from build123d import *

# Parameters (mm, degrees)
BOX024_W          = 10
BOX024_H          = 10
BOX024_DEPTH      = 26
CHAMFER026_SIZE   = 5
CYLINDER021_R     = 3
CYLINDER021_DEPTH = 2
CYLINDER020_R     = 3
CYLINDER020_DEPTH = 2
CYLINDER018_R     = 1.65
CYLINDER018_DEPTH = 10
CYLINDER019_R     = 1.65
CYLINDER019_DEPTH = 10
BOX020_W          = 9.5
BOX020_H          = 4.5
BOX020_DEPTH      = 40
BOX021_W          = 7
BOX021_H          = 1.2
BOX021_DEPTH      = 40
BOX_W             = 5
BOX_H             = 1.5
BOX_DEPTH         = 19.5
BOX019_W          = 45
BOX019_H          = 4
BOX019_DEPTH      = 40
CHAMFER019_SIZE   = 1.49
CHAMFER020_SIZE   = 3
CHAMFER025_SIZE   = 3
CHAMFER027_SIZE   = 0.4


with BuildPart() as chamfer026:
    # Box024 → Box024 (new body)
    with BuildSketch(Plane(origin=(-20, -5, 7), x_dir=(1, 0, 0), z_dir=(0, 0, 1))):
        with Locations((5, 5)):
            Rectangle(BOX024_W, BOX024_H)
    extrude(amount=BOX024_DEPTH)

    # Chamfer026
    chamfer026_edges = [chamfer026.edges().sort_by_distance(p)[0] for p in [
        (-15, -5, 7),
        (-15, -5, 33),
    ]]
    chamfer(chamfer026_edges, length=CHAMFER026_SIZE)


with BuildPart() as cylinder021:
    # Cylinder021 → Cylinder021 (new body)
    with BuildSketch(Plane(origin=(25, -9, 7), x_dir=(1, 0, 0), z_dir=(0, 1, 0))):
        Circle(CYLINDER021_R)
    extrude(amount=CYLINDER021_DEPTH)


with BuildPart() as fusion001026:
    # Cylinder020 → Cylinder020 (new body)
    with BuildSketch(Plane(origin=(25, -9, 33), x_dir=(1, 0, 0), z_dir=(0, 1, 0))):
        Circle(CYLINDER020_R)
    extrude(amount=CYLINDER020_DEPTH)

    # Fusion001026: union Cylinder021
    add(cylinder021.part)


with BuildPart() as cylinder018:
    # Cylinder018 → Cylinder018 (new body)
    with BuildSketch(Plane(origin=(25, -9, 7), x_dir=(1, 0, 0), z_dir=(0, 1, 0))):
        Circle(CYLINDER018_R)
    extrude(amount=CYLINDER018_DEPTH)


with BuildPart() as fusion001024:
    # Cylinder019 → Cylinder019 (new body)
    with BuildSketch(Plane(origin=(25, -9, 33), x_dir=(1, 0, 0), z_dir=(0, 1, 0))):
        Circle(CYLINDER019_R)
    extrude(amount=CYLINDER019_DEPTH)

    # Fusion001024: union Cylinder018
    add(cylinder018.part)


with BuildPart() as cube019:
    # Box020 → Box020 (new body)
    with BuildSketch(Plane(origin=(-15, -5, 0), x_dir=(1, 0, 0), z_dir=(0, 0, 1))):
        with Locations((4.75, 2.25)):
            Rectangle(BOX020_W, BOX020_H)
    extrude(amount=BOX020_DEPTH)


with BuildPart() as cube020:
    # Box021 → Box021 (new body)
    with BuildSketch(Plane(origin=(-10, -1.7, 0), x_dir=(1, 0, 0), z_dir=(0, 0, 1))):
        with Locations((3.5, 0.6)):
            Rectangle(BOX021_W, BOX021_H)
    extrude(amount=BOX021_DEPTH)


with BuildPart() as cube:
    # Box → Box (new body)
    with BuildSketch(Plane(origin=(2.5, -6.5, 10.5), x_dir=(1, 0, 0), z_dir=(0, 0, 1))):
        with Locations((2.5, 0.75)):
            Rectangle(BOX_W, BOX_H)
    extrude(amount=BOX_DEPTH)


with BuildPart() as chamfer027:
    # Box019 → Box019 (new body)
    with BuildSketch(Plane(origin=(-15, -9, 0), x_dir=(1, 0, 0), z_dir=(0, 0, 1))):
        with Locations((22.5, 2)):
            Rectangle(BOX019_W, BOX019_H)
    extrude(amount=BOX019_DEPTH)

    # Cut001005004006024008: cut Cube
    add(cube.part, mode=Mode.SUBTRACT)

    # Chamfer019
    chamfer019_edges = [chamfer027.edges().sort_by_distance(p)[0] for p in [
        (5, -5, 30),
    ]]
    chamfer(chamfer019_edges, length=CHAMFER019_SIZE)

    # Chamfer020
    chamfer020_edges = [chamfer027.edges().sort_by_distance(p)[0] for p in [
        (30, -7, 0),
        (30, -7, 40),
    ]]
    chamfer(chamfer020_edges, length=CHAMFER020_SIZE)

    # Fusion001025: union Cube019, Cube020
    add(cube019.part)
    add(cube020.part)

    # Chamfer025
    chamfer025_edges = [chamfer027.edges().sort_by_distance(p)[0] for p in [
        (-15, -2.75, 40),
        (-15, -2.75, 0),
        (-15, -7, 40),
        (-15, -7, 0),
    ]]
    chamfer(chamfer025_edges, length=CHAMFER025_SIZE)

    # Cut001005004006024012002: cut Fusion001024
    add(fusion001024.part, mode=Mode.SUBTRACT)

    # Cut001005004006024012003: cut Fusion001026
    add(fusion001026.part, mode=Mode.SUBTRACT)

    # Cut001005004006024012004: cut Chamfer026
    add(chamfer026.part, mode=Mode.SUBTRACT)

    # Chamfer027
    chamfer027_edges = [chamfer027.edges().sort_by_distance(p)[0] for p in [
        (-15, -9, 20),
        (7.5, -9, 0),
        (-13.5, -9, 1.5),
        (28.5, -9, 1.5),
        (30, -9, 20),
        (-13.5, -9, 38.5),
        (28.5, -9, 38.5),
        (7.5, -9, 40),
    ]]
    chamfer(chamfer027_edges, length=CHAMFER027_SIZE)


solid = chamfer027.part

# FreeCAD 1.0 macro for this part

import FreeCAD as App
import Part
import Sketcher

V = App.Vector


def edges_at(feature, points):
    """Names of the edges that pass closest to the given points."""
    edges = feature.Shape.Edges
    near = lambda p: min(range(len(edges)), key=lambda i: edges[i].distToShape(Part.Vertex(*p))[0])
    return sorted({f"Edge{near(p) + 1}" for p in points})


def add_polygon(sketch, points):
    """Adds a closed chain of lines whose ends are joined by coincident constraints."""
    first, n = sketch.GeometryCount, len(points)
    for a, b in zip(points, points[1:] + points[:1]):
        sketch.addGeometry(Part.LineSegment(App.Vector(*a, 0), App.Vector(*b, 0)), False)
    for i in range(n):
        sketch.addConstraint(Sketcher.Constraint("Coincident", first + i, 2, first + (i + 1) % n, 1))

doc = App.newDocument("Part")
body = doc.addObject("PartDesign::Body", "Body")

# Sketch on XY plane
sketch1 = body.newObject("Sketcher::SketchObject", "Sketch")
sketch1.AttachmentSupport = (doc.getObject("XY_Plane"), [""])
sketch1.MapMode = "FlatFace"
sketch1.AttachmentOffset = App.Placement(V(0, 0, 7), App.Rotation())
add_polygon(sketch1, [(-20, 5), (-20, -5), (-10, -5), (-10, 5)])  # lines 0-3
sketch1.addConstraint([
    Sketcher.Constraint("Vertical", 0),
    Sketcher.Constraint("Horizontal", 1),
    Sketcher.Constraint("Vertical", 2),
    Sketcher.Constraint("Horizontal", 3),
    Sketcher.Constraint("Equal", 3, 0),
    Sketcher.Constraint("DistanceX", 1, 1, 1, 2, 10.0),
    Sketcher.Constraint("DistanceX", 0, 2, -1, 1, 20.0),
    Sketcher.Constraint("DistanceY", 0, 2, -1, 1, 5.0),
])
pad1 = body.newObject("PartDesign::Pad", "Pad")
pad1.Profile = sketch1
pad1.Length = 26
doc.recompute()

chamfer = body.newObject("PartDesign::Chamfer", "Chamfer")
chamfer.Base = (pad1, edges_at(pad1, [(-15, -5, 7), (-15, -5, 33)]))
chamfer.Size = 5
body2 = doc.addObject("PartDesign::Body", "Body001")

# Sketch on XZ plane
sketch2 = body2.newObject("Sketcher::SketchObject", "Sketch001")
sketch2.AttachmentSupport = (doc.getObject("XZ_Plane001"), [""])
sketch2.MapMode = "FlatFace"
sketch2.AttachmentOffset = App.Placement(V(0, 0, 9), App.Rotation())
sketch2.addGeometry(Part.Circle(V(25, 7, 0), V(0, 0, 1), 3), False)
sketch2.addConstraint([
    Sketcher.Constraint("Diameter", 0, 6.0),
    Sketcher.Constraint("DistanceX", -1, 1, 0, 3, 25.0),
    Sketcher.Constraint("DistanceY", -1, 1, 0, 3, 7.0),
])
pad2 = body2.newObject("PartDesign::Pad", "Pad001")
pad2.Profile = sketch2
pad2.Length = 2
pad2.Reversed = True
body3 = doc.addObject("PartDesign::Body", "Body002")
body3.AllowCompound = True

# Sketch on XZ plane
sketch3 = body3.newObject("Sketcher::SketchObject", "Sketch002")
sketch3.AttachmentSupport = (doc.getObject("XZ_Plane002"), [""])
sketch3.MapMode = "FlatFace"
sketch3.AttachmentOffset = App.Placement(V(0, 0, 9), App.Rotation())
sketch3.addGeometry(Part.Circle(V(25, 33, 0), V(0, 0, 1), 3), False)
sketch3.addConstraint([
    Sketcher.Constraint("Diameter", 0, 6.0),
    Sketcher.Constraint("DistanceX", -1, 1, 0, 3, 25.0),
    Sketcher.Constraint("DistanceY", -1, 1, 0, 3, 33.0),
])
pad3 = body3.newObject("PartDesign::Pad", "Pad002")
pad3.Profile = sketch3
pad3.Length = 2
pad3.Reversed = True
doc.recompute()

boolean = body3.newObject("PartDesign::Boolean", "Boolean")
boolean.Type = "Fuse"
boolean.addObjects([body2])
body4 = doc.addObject("PartDesign::Body", "Body003")

# Sketch on XZ plane
sketch4 = body4.newObject("Sketcher::SketchObject", "Sketch003")
sketch4.AttachmentSupport = (doc.getObject("XZ_Plane003"), [""])
sketch4.MapMode = "FlatFace"
sketch4.AttachmentOffset = App.Placement(V(0, 0, 9), App.Rotation())
sketch4.addGeometry(Part.Circle(V(25, 7, 0), V(0, 0, 1), 1.6), False)
sketch4.addConstraint([
    Sketcher.Constraint("Diameter", 0, 3.3),
    Sketcher.Constraint("DistanceX", -1, 1, 0, 3, 25.0),
    Sketcher.Constraint("DistanceY", -1, 1, 0, 3, 7.0),
])
pad4 = body4.newObject("PartDesign::Pad", "Pad003")
pad4.Profile = sketch4
pad4.Length = 10
pad4.Reversed = True
body5 = doc.addObject("PartDesign::Body", "Body004")
body5.AllowCompound = True

# Sketch on XZ plane
sketch5 = body5.newObject("Sketcher::SketchObject", "Sketch004")
sketch5.AttachmentSupport = (doc.getObject("XZ_Plane004"), [""])
sketch5.MapMode = "FlatFace"
sketch5.AttachmentOffset = App.Placement(V(0, 0, 9), App.Rotation())
sketch5.addGeometry(Part.Circle(V(25, 33, 0), V(0, 0, 1), 1.6), False)
sketch5.addConstraint([
    Sketcher.Constraint("Diameter", 0, 3.3),
    Sketcher.Constraint("DistanceX", -1, 1, 0, 3, 25.0),
    Sketcher.Constraint("DistanceY", -1, 1, 0, 3, 33.0),
])
pad5 = body5.newObject("PartDesign::Pad", "Pad004")
pad5.Profile = sketch5
pad5.Length = 10
pad5.Reversed = True
doc.recompute()

boolean2 = body5.newObject("PartDesign::Boolean", "Boolean001")
boolean2.Type = "Fuse"
boolean2.addObjects([body4])
body6 = doc.addObject("PartDesign::Body", "Body005")

# Sketch on XY plane
sketch6 = body6.newObject("Sketcher::SketchObject", "Sketch005")
sketch6.AttachmentSupport = (doc.getObject("XY_Plane005"), [""])
sketch6.MapMode = "FlatFace"
add_polygon(sketch6, [(-15, -0.5), (-15, -5), (-5.5, -5), (-5.5, -0.5)])  # lines 0-3
sketch6.addConstraint([
    Sketcher.Constraint("Vertical", 0),
    Sketcher.Constraint("Horizontal", 1),
    Sketcher.Constraint("Vertical", 2),
    Sketcher.Constraint("Horizontal", 3),
    Sketcher.Constraint("DistanceX", 1, 1, 1, 2, 9.5),
    Sketcher.Constraint("DistanceY", 0, 2, 0, 1, 4.5),
    Sketcher.Constraint("DistanceX", 0, 2, -1, 1, 15.0),
    Sketcher.Constraint("DistanceY", 0, 2, -1, 1, 5.0),
])
pad6 = body6.newObject("PartDesign::Pad", "Pad005")
pad6.Profile = sketch6
pad6.Length = 40
body7 = doc.addObject("PartDesign::Body", "Body006")

# Sketch on XY plane
sketch7 = body7.newObject("Sketcher::SketchObject", "Sketch006")
sketch7.AttachmentSupport = (doc.getObject("XY_Plane006"), [""])
sketch7.MapMode = "FlatFace"
add_polygon(sketch7, [(-10, -0.5), (-10, -1.7), (-3, -1.7), (-3, -0.5)])  # lines 0-3
sketch7.addConstraint([
    Sketcher.Constraint("Vertical", 0),
    Sketcher.Constraint("Horizontal", 1),
    Sketcher.Constraint("Vertical", 2),
    Sketcher.Constraint("Horizontal", 3),
    Sketcher.Constraint("DistanceX", 1, 1, 1, 2, 7.0),
    Sketcher.Constraint("DistanceY", 0, 2, 0, 1, 1.2),
    Sketcher.Constraint("DistanceX", 0, 2, -1, 1, 10.0),
    Sketcher.Constraint("DistanceY", 0, 2, -1, 1, 1.7),
])
pad7 = body7.newObject("PartDesign::Pad", "Pad006")
pad7.Profile = sketch7
pad7.Length = 40
body8 = doc.addObject("PartDesign::Body", "Body007")

# Sketch on XY plane
sketch8 = body8.newObject("Sketcher::SketchObject", "Sketch007")
sketch8.AttachmentSupport = (doc.getObject("XY_Plane007"), [""])
sketch8.MapMode = "FlatFace"
sketch8.AttachmentOffset = App.Placement(V(0, 0, 10.5), App.Rotation())
add_polygon(sketch8, [(2.5, -5), (2.5, -6.5), (7.5, -6.5), (7.5, -5)])  # lines 0-3
sketch8.addConstraint([
    Sketcher.Constraint("Vertical", 0),
    Sketcher.Constraint("Horizontal", 1),
    Sketcher.Constraint("Vertical", 2),
    Sketcher.Constraint("Horizontal", 3),
    Sketcher.Constraint("DistanceX", 1, 1, 1, 2, 5.0),
    Sketcher.Constraint("DistanceY", 0, 2, 0, 1, 1.5),
    Sketcher.Constraint("DistanceY", 2, 2, -1, 1, 5.0),
    Sketcher.Constraint("DistanceX", -1, 1, 0, 2, 2.5),
])
pad8 = body8.newObject("PartDesign::Pad", "Pad007")
pad8.Profile = sketch8
pad8.Length = 19.5
body9 = doc.addObject("PartDesign::Body", "Body008")

# Sketch on XY plane
sketch9 = body9.newObject("Sketcher::SketchObject", "Sketch008")
sketch9.AttachmentSupport = (doc.getObject("XY_Plane008"), [""])
sketch9.MapMode = "FlatFace"
add_polygon(sketch9, [(-15, -5), (-15, -9), (30, -9), (30, -5)])  # lines 0-3
sketch9.addConstraint([
    Sketcher.Constraint("Vertical", 0),
    Sketcher.Constraint("Horizontal", 1),
    Sketcher.Constraint("Vertical", 2),
    Sketcher.Constraint("Horizontal", 3),
    Sketcher.Constraint("DistanceX", 1, 1, 1, 2, 45.0),
    Sketcher.Constraint("DistanceY", 0, 2, 0, 1, 4.0),
    Sketcher.Constraint("DistanceX", 0, 2, -1, 1, 15.0),
    Sketcher.Constraint("DistanceY", 0, 2, -1, 1, 9.0),
])
pad9 = body9.newObject("PartDesign::Pad", "Pad008")
pad9.Profile = sketch9
pad9.Length = 40
doc.recompute()

boolean3 = body9.newObject("PartDesign::Boolean", "Boolean002")
boolean3.Type = "Cut"
boolean3.addObjects([body8])
doc.recompute()

chamfer2 = body9.newObject("PartDesign::Chamfer", "Chamfer001")
chamfer2.Base = (boolean3, edges_at(boolean3, [(5, -5, 30)]))
chamfer2.Size = 1.49
doc.recompute()

chamfer3 = body9.newObject("PartDesign::Chamfer", "Chamfer002")
chamfer3.Base = (chamfer2, edges_at(chamfer2, [(30, -7, 0), (30, -7, 40)]))
chamfer3.Size = 3
doc.recompute()

boolean4 = body9.newObject("PartDesign::Boolean", "Boolean003")
boolean4.Type = "Fuse"
boolean4.addObjects([body6])
doc.recompute()

boolean5 = body9.newObject("PartDesign::Boolean", "Boolean004")
boolean5.Type = "Fuse"
boolean5.addObjects([body7])
doc.recompute()

chamfer4 = body9.newObject("PartDesign::Chamfer", "Chamfer003")
chamfer4.Base = (boolean5, edges_at(boolean5, [
    (-15, -4.75, 40),
    (-15, -4.75, 0),
    (-15, -4.75, 40),
    (-15, -4.75, 0),
]))
chamfer4.Size = 3
doc.recompute()

boolean6 = body9.newObject("PartDesign::Boolean", "Boolean005")
boolean6.Type = "Cut"
boolean6.addObjects([body5])
doc.recompute()

boolean7 = body9.newObject("PartDesign::Boolean", "Boolean006")
boolean7.Type = "Cut"
boolean7.addObjects([body3])
doc.recompute()

boolean8 = body9.newObject("PartDesign::Boolean", "Boolean007")
boolean8.Type = "Cut"
boolean8.addObjects([body])
doc.recompute()

chamfer5 = body9.newObject("PartDesign::Chamfer", "Chamfer004")
chamfer5.Base = (boolean8, edges_at(boolean8, [
    (-15, -9, 20),
    (7.5, -9, 0),
    (-13.5, -9, 1.5),
    (28.5, -9, 1.5),
    (30, -9, 20),
    (-13.5, -9, 38.5),
    (28.5, -9, 38.5),
    (7.5, -9, 40),
]))
chamfer5.Size = 0.4

doc.recompute()
